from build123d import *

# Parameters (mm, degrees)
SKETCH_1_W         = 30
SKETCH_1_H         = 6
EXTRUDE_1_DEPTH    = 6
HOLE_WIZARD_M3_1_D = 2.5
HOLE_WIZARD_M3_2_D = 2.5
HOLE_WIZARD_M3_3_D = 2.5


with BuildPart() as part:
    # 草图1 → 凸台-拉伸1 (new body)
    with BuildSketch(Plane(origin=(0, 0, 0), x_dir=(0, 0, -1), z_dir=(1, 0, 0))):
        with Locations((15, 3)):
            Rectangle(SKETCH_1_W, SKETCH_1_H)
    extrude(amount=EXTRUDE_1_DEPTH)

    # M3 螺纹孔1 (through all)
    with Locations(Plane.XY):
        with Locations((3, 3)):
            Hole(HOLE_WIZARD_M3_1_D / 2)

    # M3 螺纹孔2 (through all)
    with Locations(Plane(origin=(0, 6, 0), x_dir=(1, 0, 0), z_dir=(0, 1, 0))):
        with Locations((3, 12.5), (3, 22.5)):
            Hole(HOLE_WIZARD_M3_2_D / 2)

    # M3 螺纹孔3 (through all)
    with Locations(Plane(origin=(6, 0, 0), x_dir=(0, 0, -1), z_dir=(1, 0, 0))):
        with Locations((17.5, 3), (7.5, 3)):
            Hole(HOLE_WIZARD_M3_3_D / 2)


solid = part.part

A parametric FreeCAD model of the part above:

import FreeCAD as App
import Part
import Sketcher
from FreeCAD import Vector

doc = App.newDocument("Part")
body = doc.addObject("PartDesign::Body", "Body")

# Sketch on YZ plane
sketch1 = doc.addObject("Sketcher::SketchObject", "Sketch")
body.addObject(sketch1)
sketch1.AttachmentSupport = (doc.YZ_Plane, [""])
sketch1.MapMode = "FlatFace"
sketch1.addGeometry([
    Part.LineSegment(Vector(6, 0, 0), Vector(0, 0, 0)),
    Part.LineSegment(Vector(0, 0, 0), Vector(0, -30, 0)),
    Part.LineSegment(Vector(0, -30, 0), Vector(6, -30, 0)),
    Part.LineSegment(Vector(6, -30, 0), Vector(6, 0, 0)),
], False)
sketch1.addConstraint([
    Sketcher.Constraint("Coincident", 0, 2, 1, 1),
    Sketcher.Constraint("Coincident", 1, 2, 2, 1),
    Sketcher.Constraint("Coincident", 2, 2, 3, 1),
    Sketcher.Constraint("Coincident", 3, 2, 0, 1),
    Sketcher.Constraint("Horizontal", 0),
    Sketcher.Constraint("Vertical", 1),
    Sketcher.Constraint("Horizontal", 2),
    Sketcher.Constraint("Vertical", 3),
    Sketcher.Constraint("Coincident", 0, 2, -1, 1),
    Sketcher.Constraint("DistanceX", 0, 2, 0, 1, 6.0),
    Sketcher.Constraint("DistanceY", 1, 2, 1, 1, 30.0),
])
pad1 = doc.addObject("PartDesign::Pad", "Pad")
body.addObject(pad1)
pad1.Profile = sketch1
pad1.Length = 6

# Sketch on XY plane
sketch2 = doc.addObject("Sketcher::SketchObject", "Sketch001")
body.addObject(sketch2)
sketch2.AttachmentSupport = (doc.XY_Plane, [""])
sketch2.MapMode = "FlatFace"
sketch2.addGeometry(Part.Circle(Vector(3, 3, 0), Vector(0, 0, 1), 1.2), False)
sketch2.addConstraint([
    Sketcher.Constraint("Diameter", 0, 2.5),
    Sketcher.Constraint("DistanceX", -1, 1, 0, 3, 3.0),
    Sketcher.Constraint("DistanceY", -1, 1, 0, 3, 3.0),
])
doc.recompute()
hole = doc.addObject("PartDesign::Hole", "Hole")
body.addObject(hole)
hole.Profile = sketch2
hole.ThreadType = "None"
hole.Diameter = 2.5
hole.DepthType = "ThroughAll"

# Sketch on XZ plane
sketch3 = doc.addObject("Sketcher::SketchObject", "Sketch002")
body.addObject(sketch3)
sketch3.AttachmentSupport = (doc.XZ_Plane, [""])
sketch3.MapMode = "FlatFace"
sketch3.AttachmentOffset = App.Placement(Vector(0, 0, -6), App.Rotation())
sketch3.addGeometry([
    Part.Circle(Vector(3, -12.5, 0), Vector(0, 0, 1), 1.2),
    Part.Circle(Vector(3, -22.5, 0), Vector(0, 0, 1), 1.2),
], False)
sketch3.addConstraint([
    Sketcher.Constraint("Equal", 0, 1),
    Sketcher.Constraint("Vertical", 0, 3, 1, 3),
    Sketcher.Constraint("Diameter", 0, 2.5),
    Sketcher.Constraint("DistanceX", -1, 1, 0, 3, 3.0),
    Sketcher.Constraint("DistanceY", 1, 3, 0, 3, 10.0),
    Sketcher.Constraint("DistanceY", 0, 3, -1, 1, 12.5),
])
doc.recompute()
hole2 = doc.addObject("PartDesign::Hole", "Hole001")
body.addObject(hole2)
hole2.Profile = sketch3
hole2.ThreadType = "None"
hole2.Diameter = 2.5
hole2.DepthType = "ThroughAll"
hole2.Reversed = True

# Sketch on YZ plane
sketch4 = doc.addObject("Sketcher::SketchObject", "Sketch003")
body.addObject(sketch4)
sketch4.AttachmentSupport = (doc.YZ_Plane, [""])
sketch4.MapMode = "FlatFace"
sketch4.AttachmentOffset = App.Placement(Vector(0, 0, 6), App.Rotation())
sketch4.addGeometry([
    Part.Circle(Vector(3, -17.5, 0), Vector(0, 0, 1), 1.2),
    Part.Circle(Vector(3, -7.5, 0), Vector(0, 0, 1), 1.2),
], False)
sketch4.addConstraint([
    Sketcher.Constraint("Equal", 0, 1),
    Sketcher.Constraint("Vertical", 0, 3, 1, 3),
    Sketcher.Constraint("Diameter", 0, 2.5),
    Sketcher.Constraint("DistanceX", -1, 1, 0, 3, 3.0),
    Sketcher.Constraint("DistanceY", 0, 3, 1, 3, 10.0),
    Sketcher.Constraint("DistanceY", 0, 3, -1, 1, 17.5),
])
doc.recompute()
hole3 = doc.addObject("PartDesign::Hole", "Hole002")
body.addObject(hole3)
hole3.Profile = sketch4
hole3.ThreadType = "None"
hole3.Diameter = 2.5
hole3.DepthType = "ThroughAll"

doc.recompute()
